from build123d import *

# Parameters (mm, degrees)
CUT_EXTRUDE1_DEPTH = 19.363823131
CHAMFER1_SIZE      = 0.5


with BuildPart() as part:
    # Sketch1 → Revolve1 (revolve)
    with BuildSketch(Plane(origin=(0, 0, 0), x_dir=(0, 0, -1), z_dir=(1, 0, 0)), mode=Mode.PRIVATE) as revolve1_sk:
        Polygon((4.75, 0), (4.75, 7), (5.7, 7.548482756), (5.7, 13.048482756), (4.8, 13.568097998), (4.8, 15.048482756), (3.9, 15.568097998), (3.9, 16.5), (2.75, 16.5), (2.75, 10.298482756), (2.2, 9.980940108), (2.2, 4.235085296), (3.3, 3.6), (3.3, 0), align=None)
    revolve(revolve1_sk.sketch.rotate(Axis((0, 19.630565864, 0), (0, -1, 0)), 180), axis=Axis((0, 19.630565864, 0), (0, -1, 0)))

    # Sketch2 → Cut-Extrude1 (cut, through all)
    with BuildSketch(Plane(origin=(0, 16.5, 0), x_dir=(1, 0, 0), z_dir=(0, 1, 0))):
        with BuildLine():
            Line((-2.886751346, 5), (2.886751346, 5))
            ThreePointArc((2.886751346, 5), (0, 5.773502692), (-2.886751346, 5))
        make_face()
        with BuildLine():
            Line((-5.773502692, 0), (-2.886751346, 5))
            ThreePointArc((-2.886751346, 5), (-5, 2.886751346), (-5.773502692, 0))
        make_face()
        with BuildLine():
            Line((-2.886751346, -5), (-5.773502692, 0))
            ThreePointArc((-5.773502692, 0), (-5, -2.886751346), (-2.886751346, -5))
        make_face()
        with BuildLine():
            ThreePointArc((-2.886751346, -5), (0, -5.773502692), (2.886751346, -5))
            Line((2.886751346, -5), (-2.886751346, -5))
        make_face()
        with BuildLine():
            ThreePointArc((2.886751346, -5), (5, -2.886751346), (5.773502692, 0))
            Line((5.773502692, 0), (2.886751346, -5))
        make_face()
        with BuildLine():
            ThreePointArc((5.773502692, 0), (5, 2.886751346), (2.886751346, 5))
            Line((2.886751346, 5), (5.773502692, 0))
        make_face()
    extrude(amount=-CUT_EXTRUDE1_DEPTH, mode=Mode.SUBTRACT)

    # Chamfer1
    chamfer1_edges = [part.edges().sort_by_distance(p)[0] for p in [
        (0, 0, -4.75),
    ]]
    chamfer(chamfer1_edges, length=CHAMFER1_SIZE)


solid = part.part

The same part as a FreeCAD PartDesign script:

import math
import FreeCAD as App
import Part
import Sketcher
from FreeCAD import Vector
Q = App.Units.Quantity


def edges_at(feature, points):
    """Names of the edges that pass closest to the given points."""
    edges = feature.Shape.Edges
    near = lambda p: min(range(len(edges)), key=lambda i: edges[i].distToShape(Part.Vertex(*p))[0])
    return sorted({f"Edge{near(p) + 1}" for p in points})


def add_polygon(sketch, points):
    """Adds a closed chain of lines whose ends are joined by coincident constraints."""
    first, n = sketch.GeometryCount, len(points)
    for a, b in zip(points, points[1:] + points[:1]):
        sketch.addGeometry(Part.LineSegment(App.Vector(*a, 0), App.Vector(*b, 0)), False)
    for i in range(n):
        sketch.addConstraint(Sketcher.Constraint("Coincident", first + i, 2, first + (i + 1) % n, 1))

doc = App.newDocument("Part")
body = doc.addObject("PartDesign::Body", "Body")

# Sketch on YZ plane
sketch1 = body.newObject("Sketcher::SketchObject", "Sketch")
sketch1.AttachmentSupport = (doc.getObject("YZ_Plane"), [""])
sketch1.MapMode = "FlatFace"
add_polygon(sketch1, [(0, -4.75), (7, -4.75), (7.548483, -5.7), (13.048483, -5.7), (13.568098, -4.8), (15.048483, -4.8), (15.568098, -3.9), (16.5, -3.9), (16.5, -2.75), (10.298483, -2.75), (9.98094, -2.2), (4.235085, -2.2), (3.6, -3.3), (0, -3.3)])  # lines 0-13
sketch1.addConstraint([
    Sketcher.Constraint("Horizontal", 0),
    Sketcher.Constraint("Horizontal", 2),
    Sketcher.Constraint("Horizontal", 4),
    Sketcher.Constraint("Horizontal", 6),
    Sketcher.Constraint("Vertical", 7),
    Sketcher.Constraint("Horizontal", 8),
    Sketcher.Constraint("Horizontal", 10),
    Sketcher.Constraint("Horizontal", 12),
    Sketcher.Constraint("Vertical", 13),
    Sketcher.Constraint("PointOnObject", 12, 2, -2),
    Sketcher.Constraint("Parallel", 3, 5),
    Sketcher.Constraint("Parallel", 1, 9),
    Sketcher.Constraint("Parallel", 5, 11),
    Sketcher.Constraint("Equal", 3, 5),
    Sketcher.Constraint("DistanceX", 0, 1, 0, 2, 7.0),
    Sketcher.Constraint("Angle", 1, Q("-60 deg")),
    Sketcher.Constraint("Angle", 3, Q("60 deg")),
    Sketcher.Constraint("DistanceX", 2, 1, 2, 2, 5.5),
    Sketcher.Constraint("DistanceX", 12, 2, 12, 1, 3.6),
    Sketcher.Constraint("DistanceX", 2, 2, 4, 2, 2.0),
    Sketcher.Constraint("DistanceY", 0, 2, 8, 2, 2.0),
    Sketcher.Constraint("DistanceY", 7, 1, 7, 2, 1.15),
    Sketcher.Constraint("DistanceY", 13, 2, 13, 1, 1.45),
    Sketcher.Constraint("DistanceY", 1, 2, -1, 1, 5.7),
    Sketcher.Constraint("DistanceY", 3, 2, -1, 1, 4.8),
    Sketcher.Constraint("DistanceX", -1, 1, 6, 2, 16.5),
    Sketcher.Constraint("DistanceY", 9, 2, -1, 1, 2.2),
    Sketcher.Constraint("DistanceX", 1, 2, 8, 2, 2.75),
])
revolution = body.newObject("PartDesign::Revolution", "Revolution")
revolution.Profile = sketch1
revolution.ReferenceAxis = (sketch1, ["H_Axis"])
revolution.Angle = 360

# Sketch on XZ plane
sketch2 = body.newObject("Sketcher::SketchObject", "Sketch001")
sketch2.AttachmentSupport = (doc.getObject("XZ_Plane"), [""])
sketch2.MapMode = "FlatFace"
sketch2.AttachmentOffset = App.Placement(Vector(0, 0, -16.5), App.Rotation())
sketch2.addGeometry([
    Part.LineSegment(Vector(-2.886751, -5, 0), Vector(2.886751, -5, 0)),  # 0
    Part.ArcOfCircle(Part.Circle(Vector(0, 0, 0), Vector(0, 0, 1), 5.773503), math.radians(-120), math.radians(-60)),  # 1
    Part.LineSegment(Vector(-5.773503, 0, 0), Vector(-2.886751, -5, 0)),  # 2
    Part.ArcOfCircle(Part.Circle(Vector(0, 0, 0), Vector(0, 0, 1), 5.773503), math.radians(180), math.radians(240)),  # 3
    Part.LineSegment(Vector(-2.886751, 5, 0), Vector(-5.773503, 0, 0)),  # 4
    Part.ArcOfCircle(Part.Circle(Vector(0, 0, 0), Vector(0, 0, 1), 5.773503), math.radians(120), math.radians(180)),  # 5
    Part.ArcOfCircle(Part.Circle(Vector(0, 0, 0), Vector(0, 0, 1), 5.773503), math.radians(60), math.radians(120)),  # 6
    Part.LineSegment(Vector(2.886751, 5, 0), Vector(-2.886751, 5, 0)),  # 7
    Part.ArcOfCircle(Part.Circle(Vector(0, 0, 0), Vector(0, 0, 1), 5.773503), math.radians(0), math.radians(60)),  # 8
    Part.LineSegment(Vector(5.773503, 0, 0), Vector(2.886751, 5, 0)),  # 9
    Part.ArcOfCircle(Part.Circle(Vector(0, 0, 0), Vector(0, 0, 1), 5.773503), math.radians(-60), math.radians(0)),  # 10
    Part.LineSegment(Vector(2.886751, -5, 0), Vector(5.773503, 0, 0)),  # 11
], False)
sketch2.addConstraint([
    Sketcher.Constraint("Coincident", 0, 1, 1, 1),
    Sketcher.Constraint("Coincident", 1, 2, 0, 2),
    Sketcher.Constraint("Coincident", 2, 1, 3, 1),
    Sketcher.Constraint("Coincident", 3, 2, 2, 2),
    Sketcher.Constraint("Coincident", 4, 1, 5, 1),
    Sketcher.Constraint("Coincident", 5, 2, 4, 2),
    Sketcher.Constraint("Coincident", 6, 1, 7, 1),
    Sketcher.Constraint("Coincident", 7, 2, 6, 2),
    Sketcher.Constraint("Coincident", 8, 1, 9, 1),
    Sketcher.Constraint("Coincident", 9, 2, 8, 2),
    Sketcher.Constraint("Coincident", 10, 1, 11, 1),
    Sketcher.Constraint("Coincident", 11, 2, 10, 2),
    Sketcher.Constraint("Horizontal", 0),
    Sketcher.Constraint("Horizontal", 7),
    Sketcher.Constraint("Coincident", 1, 3, -1, 1),
    Sketcher.Constraint("Coincident", 3, 3, -1, 1),
    Sketcher.Constraint("Coincident", 5, 3, -1, 1),
    Sketcher.Constraint("Coincident", 6, 3, -1, 1),
    Sketcher.Constraint("Coincident", 8, 3, -1, 1),
    Sketcher.Constraint("Coincident", 10, 3, -1, 1),
    Sketcher.Constraint("Coincident", 3, 2, 0, 1),
    Sketcher.Constraint("Coincident", 5, 2, 2, 1),
    Sketcher.Constraint("Coincident", 7, 2, 4, 1),
    Sketcher.Constraint("Coincident", 9, 2, 6, 1),
    Sketcher.Constraint("Coincident", 10, 1, 1, 2),
    Sketcher.Constraint("PointOnObject", 2, 1, -1),
    Sketcher.Constraint("PointOnObject", 8, 1, -1),
    Sketcher.Constraint("PointOnObject", 11, 2, -1),
    Sketcher.Constraint("Parallel", 2, 9),
    Sketcher.Constraint("Angle", 2, Q("-60 deg")),
    Sketcher.Constraint("DistanceY", 0, 1, -1, 1, 5.0),
])
pocket1 = body.newObject("PartDesign::Pocket", "Pocket")
pocket1.Profile = sketch2
pocket1.Type = "ThroughAll"
pocket1.Reversed = True
doc.recompute()

chamfer = body.newObject("PartDesign::Chamfer", "Chamfer")
chamfer.Base = (pocket1, edges_at(pocket1, [(0, 0, -4.75)]))
chamfer.Size = 0.5

doc.recompute()
